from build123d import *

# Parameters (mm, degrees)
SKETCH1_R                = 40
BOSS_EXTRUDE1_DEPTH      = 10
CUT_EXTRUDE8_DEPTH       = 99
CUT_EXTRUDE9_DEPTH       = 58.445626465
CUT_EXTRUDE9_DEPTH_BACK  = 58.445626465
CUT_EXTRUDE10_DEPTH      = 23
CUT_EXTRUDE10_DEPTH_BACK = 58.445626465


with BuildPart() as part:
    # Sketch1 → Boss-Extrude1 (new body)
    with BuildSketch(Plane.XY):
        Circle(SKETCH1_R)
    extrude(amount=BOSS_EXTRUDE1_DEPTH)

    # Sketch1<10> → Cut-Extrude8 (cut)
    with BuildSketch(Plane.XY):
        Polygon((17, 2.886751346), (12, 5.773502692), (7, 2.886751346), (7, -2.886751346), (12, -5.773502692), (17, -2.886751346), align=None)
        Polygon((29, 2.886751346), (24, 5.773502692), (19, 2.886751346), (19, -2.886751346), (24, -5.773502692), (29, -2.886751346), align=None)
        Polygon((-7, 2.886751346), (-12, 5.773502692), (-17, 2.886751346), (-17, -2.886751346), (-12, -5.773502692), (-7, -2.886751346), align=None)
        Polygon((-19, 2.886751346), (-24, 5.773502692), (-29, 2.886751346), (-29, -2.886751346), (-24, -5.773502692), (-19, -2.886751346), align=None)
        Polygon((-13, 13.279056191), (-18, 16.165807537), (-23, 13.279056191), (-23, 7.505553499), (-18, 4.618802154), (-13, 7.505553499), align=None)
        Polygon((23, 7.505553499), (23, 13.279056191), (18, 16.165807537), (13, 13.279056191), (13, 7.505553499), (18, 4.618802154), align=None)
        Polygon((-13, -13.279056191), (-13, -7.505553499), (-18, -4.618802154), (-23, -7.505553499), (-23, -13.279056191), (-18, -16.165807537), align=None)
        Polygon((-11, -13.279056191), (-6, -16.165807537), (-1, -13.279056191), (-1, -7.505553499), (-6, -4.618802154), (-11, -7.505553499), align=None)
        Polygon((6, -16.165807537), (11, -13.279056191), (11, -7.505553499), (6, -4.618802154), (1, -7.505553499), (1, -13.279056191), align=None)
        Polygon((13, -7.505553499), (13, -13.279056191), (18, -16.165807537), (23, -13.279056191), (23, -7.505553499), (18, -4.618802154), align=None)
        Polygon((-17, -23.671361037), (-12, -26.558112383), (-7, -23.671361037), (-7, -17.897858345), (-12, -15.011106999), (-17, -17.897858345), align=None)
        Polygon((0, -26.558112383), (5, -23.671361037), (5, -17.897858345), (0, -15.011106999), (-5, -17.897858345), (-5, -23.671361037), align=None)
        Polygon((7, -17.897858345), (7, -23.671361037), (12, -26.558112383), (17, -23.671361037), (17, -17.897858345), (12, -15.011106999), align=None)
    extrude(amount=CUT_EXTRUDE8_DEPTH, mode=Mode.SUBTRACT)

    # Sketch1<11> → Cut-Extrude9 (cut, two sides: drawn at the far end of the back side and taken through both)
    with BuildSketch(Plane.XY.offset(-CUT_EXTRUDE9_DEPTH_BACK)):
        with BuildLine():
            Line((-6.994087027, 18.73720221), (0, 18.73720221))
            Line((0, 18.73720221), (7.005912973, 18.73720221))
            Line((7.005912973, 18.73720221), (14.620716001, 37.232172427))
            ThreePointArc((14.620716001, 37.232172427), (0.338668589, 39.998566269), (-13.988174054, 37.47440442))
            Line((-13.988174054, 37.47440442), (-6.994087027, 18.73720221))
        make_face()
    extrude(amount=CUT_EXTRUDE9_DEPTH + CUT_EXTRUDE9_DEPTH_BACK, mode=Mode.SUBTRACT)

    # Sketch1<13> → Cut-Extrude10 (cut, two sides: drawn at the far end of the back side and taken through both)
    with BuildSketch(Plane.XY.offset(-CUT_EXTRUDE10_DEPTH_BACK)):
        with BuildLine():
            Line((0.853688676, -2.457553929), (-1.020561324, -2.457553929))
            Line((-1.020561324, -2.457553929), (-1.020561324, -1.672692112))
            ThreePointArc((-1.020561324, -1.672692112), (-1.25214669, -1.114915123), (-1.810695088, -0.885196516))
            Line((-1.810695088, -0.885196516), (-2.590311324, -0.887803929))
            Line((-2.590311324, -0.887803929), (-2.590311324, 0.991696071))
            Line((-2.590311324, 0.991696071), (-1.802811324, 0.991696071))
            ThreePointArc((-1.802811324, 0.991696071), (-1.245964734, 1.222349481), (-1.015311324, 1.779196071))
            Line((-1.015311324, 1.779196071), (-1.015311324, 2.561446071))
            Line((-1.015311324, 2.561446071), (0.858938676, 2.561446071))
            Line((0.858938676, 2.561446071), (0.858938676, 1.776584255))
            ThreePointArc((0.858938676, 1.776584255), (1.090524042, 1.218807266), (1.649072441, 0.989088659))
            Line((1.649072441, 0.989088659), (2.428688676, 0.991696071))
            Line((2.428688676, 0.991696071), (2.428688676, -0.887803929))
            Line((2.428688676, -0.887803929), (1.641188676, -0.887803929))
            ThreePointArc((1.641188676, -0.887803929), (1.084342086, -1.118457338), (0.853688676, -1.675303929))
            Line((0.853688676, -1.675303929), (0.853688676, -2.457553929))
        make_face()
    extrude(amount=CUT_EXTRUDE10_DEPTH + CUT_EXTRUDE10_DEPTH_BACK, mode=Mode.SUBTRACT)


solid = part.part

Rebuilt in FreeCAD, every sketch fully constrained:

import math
import FreeCAD as App
import Part
import Sketcher
from FreeCAD import Vector
Q = App.Units.Quantity


def add_polygon(sketch, points):
    """Adds a closed chain of lines whose ends are joined by coincident constraints."""
    first, n = sketch.GeometryCount, len(points)
    for a, b in zip(points, points[1:] + points[:1]):
        sketch.addGeometry(Part.LineSegment(App.Vector(*a, 0), App.Vector(*b, 0)), False)
    for i in range(n):
        sketch.addConstraint(Sketcher.Constraint("Coincident", first + i, 2, first + (i + 1) % n, 1))

doc = App.newDocument("Part")
params = doc.addObject("Spreadsheet::Sheet", "Params")
for row, (alias, value) in enumerate([
    ("sketch1_diameter", "80 mm"),
    ("pad1_length", "10 mm"),
    ("pocket1_length", "99 mm"),
    ("sketch3_radius", "40 mm"),
    ("sketch3_width", "14 mm"),
    ("sketch3_length", "20 mm"),
], start=1):
    params.set(f"A{row}", alias)
    params.set(f"B{row}", "=" + value)
    params.setAlias(f"B{row}", alias)

body = doc.addObject("PartDesign::Body", "Body")

sketch1 = body.newObject("Sketcher::SketchObject", "Sketch")
sketch1.AttachmentSupport = (doc.getObject("XY_Plane"), [""])
sketch1.MapMode = "FlatFace"
sketch1.addGeometry(Part.Circle(Vector(0, 0, 0), Vector(0, 0, 1), 40), False)
sketch1.addConstraint(Sketcher.Constraint("Coincident", 0, 3, -1, 1))
sketch1.addConstraint(Sketcher.Constraint("Diameter", 0, 80.0))
sketch1.setExpression("Constraints[1]", "Params.sketch1_diameter")
pad1 = body.newObject("PartDesign::Pad", "Pad")
pad1.Profile = sketch1
pad1.setExpression("Length", "Params.pad1_length")

sketch2 = body.newObject("Sketcher::SketchObject", "Sketch001")
sketch2.AttachmentSupport = (doc.getObject("XY_Plane"), [""])
sketch2.MapMode = "FlatFace"
add_polygon(sketch2, [(17, 3), (12, 6), (7, 3), (7, -3), (12, -6), (17, -3)])
add_polygon(sketch2, [(29, 3), (24, 6), (19, 3), (19, -3), (24, -6), (29, -3)])
add_polygon(sketch2, [(-7, 3), (-12, 6), (-17, 3), (-17, -3), (-12, -6), (-7, -3)])
add_polygon(sketch2, [(-19, 3), (-24, 6), (-29, 3), (-29, -3), (-24, -6), (-19, -3)])
add_polygon(sketch2, [(-13, 13), (-18, 16), (-23, 13), (-23, 8), (-18, 5), (-13, 8)])
add_polygon(sketch2, [(23, 8), (23, 13), (18, 16), (13, 13), (13, 8), (18, 5)])
add_polygon(sketch2, [(-13, -13), (-13, -8), (-18, -5), (-23, -8), (-23, -13), (-18, -16)])
add_polygon(sketch2, [(-11, -13), (-6, -16), (-1, -13), (-1, -8), (-6, -5), (-11, -8)])
add_polygon(sketch2, [(6, -16), (11, -13), (11, -8), (6, -5), (1, -8), (1, -13)])
add_polygon(sketch2, [(13, -8), (13, -13), (18, -16), (23, -13), (23, -8), (18, -5)])
add_polygon(sketch2, [(-17, -24), (-12, -27), (-7, -24), (-7, -18), (-12, -15), (-17, -18)])
add_polygon(sketch2, [(0, -27), (5, -24), (5, -18), (0, -15), (-5, -18), (-5, -24)])
add_polygon(sketch2, [(7, -18), (7, -24), (12, -27), (17, -24), (17, -18), (12, -15)])
sketch2.addConstraint(Sketcher.Constraint("Vertical", 2))
sketch2.addConstraint(Sketcher.Constraint("Vertical", 5))
sketch2.addConstraint(Sketcher.Constraint("Vertical", 8))
sketch2.addConstraint(Sketcher.Constraint("Vertical", 11))
sketch2.addConstraint(Sketcher.Constraint("Vertical", 14))
sketch2.addConstraint(Sketcher.Constraint("Vertical", 17))
sketch2.addConstraint(Sketcher.Constraint("Vertical", 20))
sketch2.addConstraint(Sketcher.Constraint("Vertical", 23))
sketch2.addConstraint(Sketcher.Constraint("Vertical", 26))
sketch2.addConstraint(Sketcher.Constraint("Vertical", 29))
sketch2.addConstraint(Sketcher.Constraint("Vertical", 30))
sketch2.addConstraint(Sketcher.Constraint("Vertical", 33))
sketch2.addConstraint(Sketcher.Constraint("Vertical", 36))
sketch2.addConstraint(Sketcher.Constraint("Vertical", 39))
sketch2.addConstraint(Sketcher.Constraint("Vertical", 44))
sketch2.addConstraint(Sketcher.Constraint("Vertical", 47))
sketch2.addConstraint(Sketcher.Constraint("Vertical", 49))
sketch2.addConstraint(Sketcher.Constraint("Vertical", 52))
sketch2.addConstraint(Sketcher.Constraint("Vertical", 54))
sketch2.addConstraint(Sketcher.Constraint("Vertical", 57))
sketch2.addConstraint(Sketcher.Constraint("Vertical", 62))
sketch2.addConstraint(Sketcher.Constraint("Vertical", 65))
sketch2.addConstraint(Sketcher.Constraint("Vertical", 67))
sketch2.addConstraint(Sketcher.Constraint("Vertical", 70))
sketch2.addConstraint(Sketcher.Constraint("Vertical", 72))
sketch2.addConstraint(Sketcher.Constraint("Vertical", 75))
sketch2.addConstraint(Sketcher.Constraint("Symmetric", 3, 2, 12, 2, -1, 1))
sketch2.addConstraint(Sketcher.Constraint("Symmetric", 4, 2, 13, 2, -1, 1))
sketch2.addConstraint(Sketcher.Constraint("Symmetric", 0, 2, 15, 2, -1, 1))
sketch2.addConstraint(Sketcher.Constraint("Symmetric", 1, 2, 16, 2, -1, 1))
sketch2.addConstraint(Sketcher.Constraint("Symmetric", 9, 2, 18, 2, -1, 1))
sketch2.addConstraint(Sketcher.Constraint("Symmetric", 10, 2, 19, 2, -1, 1))
sketch2.addConstraint(Sketcher.Constraint("Symmetric", 6, 2, 21, 2, -1, 1))
sketch2.addConstraint(Sketcher.Constraint("Symmetric", 7, 2, 22, 2, -1, 1))
sketch2.addConstraint(Sketcher.Constraint("Symmetric", 33, 2, 36, 2, -1, 1))
sketch2.addConstraint(Sketcher.Constraint("Symmetric", 34, 2, 37, 2, -1, 1))
sketch2.addConstraint(Sketcher.Constraint("Symmetric", 35, 2, 38, 2, -1, 1))
sketch2.addConstraint(Sketcher.Constraint("Symmetric", 31, 2, 40, 2, -1, 1))
sketch2.addConstraint(Sketcher.Constraint("Symmetric", 29, 2, 54, 2, -1, 1))
sketch2.addConstraint(Sketcher.Constraint("Symmetric", 24, 2, 55, 2, -1, 1))
sketch2.addConstraint(Sketcher.Constraint("Symmetric", 25, 2, 56, 2, -1, 1))
sketch2.addConstraint(Sketcher.Constraint("Symmetric", 27, 2, 58, 2, -1, 1))
sketch2.addConstraint(Sketcher.Constraint("Symmetric", 0, 2, 12, 2, -2))
sketch2.addConstraint(Sketcher.Constraint("Symmetric", 6, 2, 18, 2, -2))
sketch2.addConstraint(Sketcher.Constraint("Symmetric", 25, 2, 30, 2, -2))
sketch2.addConstraint(Sketcher.Constraint("Symmetric", 24, 2, 31, 2, -2))
sketch2.addConstraint(Sketcher.Constraint("Symmetric", 29, 2, 32, 2, -2))
sketch2.addConstraint(Sketcher.Constraint("Symmetric", 27, 2, 34, 2, -2))
sketch2.addConstraint(Sketcher.Constraint("Symmetric", 47, 2, 48, 2, -2))
sketch2.addConstraint(Sketcher.Constraint("Symmetric", 45, 2, 50, 2, -2))
sketch2.addConstraint(Sketcher.Constraint("Symmetric", 44, 2, 51, 2, -2))
sketch2.addConstraint(Sketcher.Constraint("Symmetric", 42, 2, 53, 2, -2))
sketch2.addConstraint(Sketcher.Constraint("Symmetric", 67, 2, 69, 2, -2))
sketch2.addConstraint(Sketcher.Constraint("Symmetric", 61, 2, 72, 2, -2))
sketch2.addConstraint(Sketcher.Constraint("Symmetric", 60, 2, 73, 2, -2))
sketch2.addConstraint(Sketcher.Constraint("Symmetric", 65, 2, 74, 2, -2))
sketch2.addConstraint(Sketcher.Constraint("Symmetric", 63, 2, 76, 2, -2))
sketch2.addConstraint(Sketcher.Constraint("PointOnObject", 68, 2, -2))
sketch2.addConstraint(Sketcher.Constraint("PointOnObject", 71, 2, -2))
sketch2.addConstraint(Sketcher.Constraint("Parallel", 0, 3))
sketch2.addConstraint(Sketcher.Constraint("Parallel", 1, 4))
sketch2.addConstraint(Sketcher.Constraint("Parallel", 3, 6))
sketch2.addConstraint(Sketcher.Constraint("Parallel", 4, 7))
sketch2.addConstraint(Sketcher.Constraint("Parallel", 6, 9))
sketch2.addConstraint(Sketcher.Constraint("Parallel", 7, 10))
sketch2.addConstraint(Sketcher.Constraint("Parallel", 9, 12))
sketch2.addConstraint(Sketcher.Constraint("Parallel", 12, 15))
sketch2.addConstraint(Sketcher.Constraint("Parallel", 15, 18))
sketch2.addConstraint(Sketcher.Constraint("Parallel", 18, 21))
sketch2.addConstraint(Sketcher.Constraint("Parallel", 21, 24))
sketch2.addConstraint(Sketcher.Constraint("Parallel", 22, 25))
sketch2.addConstraint(Sketcher.Constraint("Parallel", 24, 27))
sketch2.addConstraint(Sketcher.Constraint("Parallel", 25, 28))
sketch2.addConstraint(Sketcher.Constraint("Parallel", 27, 31))
sketch2.addConstraint(Sketcher.Constraint("Parallel", 31, 34))
sketch2.addConstraint(Sketcher.Constraint("Parallel", 32, 35))
sketch2.addConstraint(Sketcher.Constraint("Parallel", 37, 40))
sketch2.addConstraint(Sketcher.Constraint("Parallel", 38, 41))
sketch2.addConstraint(Sketcher.Constraint("Parallel", 40, 42))
sketch2.addConstraint(Sketcher.Constraint("Parallel", 41, 43))
sketch2.addConstraint(Sketcher.Constraint("Parallel", 42, 45))
sketch2.addConstraint(Sketcher.Constraint("Parallel", 43, 46))
sketch2.addConstraint(Sketcher.Constraint("Parallel", 45, 50))
sketch2.addConstraint(Sketcher.Constraint("Parallel", 50, 53))
sketch2.addConstraint(Sketcher.Constraint("Parallel", 55, 58))
sketch2.addConstraint(Sketcher.Constraint("Parallel", 56, 59))
sketch2.addConstraint(Sketcher.Constraint("Parallel", 58, 60))
sketch2.addConstraint(Sketcher.Constraint("Parallel", 59, 61))
sketch2.addConstraint(Sketcher.Constraint("Parallel", 60, 63))
sketch2.addConstraint(Sketcher.Constraint("Parallel", 61, 64))
sketch2.addConstraint(Sketcher.Constraint("Parallel", 64, 66))
sketch2.addConstraint(Sketcher.Constraint("Parallel", 63, 68))
sketch2.addConstraint(Sketcher.Constraint("Parallel", 68, 71))
sketch2.addConstraint(Sketcher.Constraint("Parallel", 73, 76))
sketch2.addConstraint(Sketcher.Constraint("Parallel", 74, 77))
sketch2.addConstraint(Sketcher.Constraint("Horizontal", 2, 2, 4, 2))
sketch2.addConstraint(Sketcher.Constraint("Horizontal", 0, 2, 6, 2))
sketch2.addConstraint(Sketcher.Constraint("Horizontal", 5, 2, 7, 2))
sketch2.addConstraint(Sketcher.Constraint("Horizontal", 8, 2, 10, 2))
sketch2.addConstraint(Sketcher.Constraint("Horizontal", 26, 2, 28, 2))
sketch2.addConstraint(Sketcher.Constraint("Horizontal", 25, 2, 29, 2))
sketch2.addConstraint(Sketcher.Constraint("Horizontal", 40, 2, 42, 2))
sketch2.addConstraint(Sketcher.Constraint("Horizontal", 41, 2, 43, 2))
sketch2.addConstraint(Sketcher.Constraint("Horizontal", 38, 2, 44, 2))
sketch2.addConstraint(Sketcher.Constraint("Horizontal", 37, 2, 45, 2))
sketch2.addConstraint(Sketcher.Constraint("Horizontal", 44, 2, 46, 2))
sketch2.addConstraint(Sketcher.Constraint("Horizontal", 62, 2, 64, 2))
sketch2.addConstraint(Sketcher.Constraint("Horizontal", 61, 2, 65, 2))
sketch2.addConstraint(Sketcher.Constraint("Horizontal", 65, 2, 66, 2))
sketch2.addConstraint(Sketcher.Constraint("Horizontal", 64, 2, 67, 2))
sketch2.addConstraint(Sketcher.Constraint("Horizontal", 63, 2, 68, 2))
sketch2.addConstraint(Sketcher.Constraint("Vertical", 15, 2, 60, 2))
sketch2.addConstraint(Sketcher.Constraint("Vertical", 17, 2, 61, 2))
sketch2.addConstraint(Sketcher.Constraint("Equal", 23, 26))
sketch2.addConstraint(Sketcher.Constraint("Equal", 57, 62))
sketch2.addConstraint(Sketcher.Constraint("Equal", 22, 24))
sketch2.addConstraint(Sketcher.Constraint("Angle", 0, Q("150 deg")))
sketch2.addConstraint(Sketcher.Constraint("DistanceX", -1, 1, 0, 2, 12.0))
sketch2.addConstraint(Sketcher.Constraint("DistanceX", -1, 1, 1, 2, 7.0))
sketch2.addConstraint(Sketcher.Constraint("DistanceX", -1, 1, 6, 2, 24.0))
sketch2.addConstraint(Sketcher.Constraint("DistanceX", 24, 2, -1, 1, 18.0))
sketch2.addConstraint(Sketcher.Constraint("DistanceX", 42, 2, -1, 1, 6.0))
sketch2.addConstraint(Sketcher.Constraint("DistanceY", 2, 2, 2, 1, 5.773503))
sketch2.addConstraint(Sketcher.Constraint("DistanceY", 61, 2, -1, 1, 23.671361))
sketch2.addConstraint(Sketcher.Constraint("DistanceY", -1, 1, 24, 2, 16.165808))
pocket1 = body.newObject("PartDesign::Pocket", "Pocket")
pocket1.Profile = sketch2
pocket1.setExpression("Length", "Params.pocket1_length")
pocket1.Reversed = True

sketch3 = body.newObject("Sketcher::SketchObject", "Sketch002")
sketch3.AttachmentSupport = (doc.getObject("XY_Plane"), [""])
sketch3.MapMode = "FlatFace"
sketch3.addGeometry(Part.LineSegment(Vector(-7, 19, 0), Vector(7, 19, 0)), False)
sketch3.addGeometry(Part.LineSegment(Vector(7, 19, 0), Vector(15, 37, 0)), False)
sketch3.addGeometry(Part.ArcOfCircle(Part.Circle(Vector(0, 0, 0), Vector(0, 0, 1), 40), math.radians(69), math.radians(110)), False)
sketch3.addGeometry(Part.LineSegment(Vector(-14, 37, 0), Vector(-7, 19, 0)), False)
sketch3.addConstraint(Sketcher.Constraint("Coincident", 0, 2, 1, 1))
sketch3.addConstraint(Sketcher.Constraint("Coincident", 1, 2, 2, 1))
sketch3.addConstraint(Sketcher.Constraint("Coincident", 2, 2, 3, 1))
sketch3.addConstraint(Sketcher.Constraint("Coincident", 3, 2, 0, 1))
sketch3.addConstraint(Sketcher.Constraint("Horizontal", 0))
sketch3.addConstraint(Sketcher.Constraint("Coincident", 2, 3, -1, 1))
sketch3.addConstraint(Sketcher.Constraint("Radius", 2, 40.0))
sketch3.addConstraint(Sketcher.Constraint("DistanceX", 0, 1, 0, 2, 14.0))
sketch3.addConstraint(Sketcher.Constraint("Distance", 3, 20.0))
sketch3.addConstraint(Sketcher.Constraint("Distance", 1, 20.001229))
sketch3.addConstraint(Sketcher.Constraint("DistanceY", 0, 2, 1, 2, 18.49497))
sketch3.addConstraint(Sketcher.Constraint("DistanceX", 2, 2, 1, 2, 28.60889))
sketch3.setExpression("Constraints[6]", "Params.sketch3_radius")
sketch3.setExpression("Constraints[7]", "Params.sketch3_width")
sketch3.setExpression("Constraints[8]", "Params.sketch3_length")
pocket2 = body.newObject("PartDesign::Pocket", "Pocket001")
pocket2.Profile = sketch3
pocket2.Type = "ThroughAll"
pocket2.Midplane = True

sketch4 = body.newObject("Sketcher::SketchObject", "Sketch003")
sketch4.AttachmentSupport = (doc.getObject("XY_Plane"), [""])
sketch4.MapMode = "FlatFace"
sketch4.addGeometry(Part.LineSegment(Vector(-1, -2.5, 0), Vector(0.9, -2.5, 0)), False)
sketch4.addGeometry(Part.LineSegment(Vector(0.9, -2.5, 0), Vector(0.9, -1.7, 0)), False)
sketch4.addGeometry(Part.ArcOfCircle(Part.Circle(Vector(1.6, -1.7, 0), Vector(0, 0, 1), 0.8), math.radians(90), math.radians(180)), False)
sketch4.addGeometry(Part.LineSegment(Vector(1.6, -0.9, 0), Vector(2.4, -0.9, 0)), False)
sketch4.addGeometry(Part.LineSegment(Vector(2.4, -0.9, 0), Vector(2.4, 1, 0)), False)
sketch4.addGeometry(Part.LineSegment(Vector(2.4, 1, 0), Vector(1.6, 1, 0)), False)
sketch4.addGeometry(Part.ArcOfCircle(Part.Circle(Vector(1.6, 1.8, 0), Vector(0, 0, 1), 0.8), math.radians(-180), math.radians(-90)), False)
sketch4.addGeometry(Part.LineSegment(Vector(0.9, 1.8, 0), Vector(0.9, 2.6, 0)), False)
sketch4.addGeometry(Part.LineSegment(Vector(0.9, 2.6, 0), Vector(-1, 2.6, 0)), False)
sketch4.addGeometry(Part.LineSegment(Vector(-1, 2.6, 0), Vector(-1, 1.8, 0)), False)
sketch4.addGeometry(Part.ArcOfCircle(Part.Circle(Vector(-1.8, 1.8, 0), Vector(0, 0, 1), 0.8), math.radians(-90), math.radians(0)), False)
sketch4.addGeometry(Part.LineSegment(Vector(-1.8, 1, 0), Vector(-2.6, 1, 0)), False)
sketch4.addGeometry(Part.LineSegment(Vector(-2.6, 1, 0), Vector(-2.6, -0.9, 0)), False)
sketch4.addGeometry(Part.LineSegment(Vector(-2.6, -0.9, 0), Vector(-1.8, -0.9, 0)), False)
sketch4.addGeometry(Part.ArcOfCircle(Part.Circle(Vector(-1.8, -1.7, 0), Vector(0, 0, 1), 0.8), math.radians(0), math.radians(90)), False)
sketch4.addGeometry(Part.LineSegment(Vector(-1, -1.7, 0), Vector(-1, -2.5, 0)), False)
sketch4.addConstraint(Sketcher.Constraint("Coincident", 0, 2, 1, 1))
sketch4.addConstraint(Sketcher.Constraint("Tangent", 1, 2, 2, 2))
sketch4.addConstraint(Sketcher.Constraint("Tangent", 2, 1, 3, 1))
sketch4.addConstraint(Sketcher.Constraint("Coincident", 3, 2, 4, 1))
sketch4.addConstraint(Sketcher.Constraint("Coincident", 4, 2, 5, 1))
sketch4.addConstraint(Sketcher.Constraint("Tangent", 5, 2, 6, 2))
sketch4.addConstraint(Sketcher.Constraint("Tangent", 6, 1, 7, 1))
sketch4.addConstraint(Sketcher.Constraint("Coincident", 7, 2, 8, 1))
sketch4.addConstraint(Sketcher.Constraint("Coincident", 8, 2, 9, 1))
sketch4.addConstraint(Sketcher.Constraint("Tangent", 9, 2, 10, 2))
sketch4.addConstraint(Sketcher.Constraint("Tangent", 10, 1, 11, 1))
sketch4.addConstraint(Sketcher.Constraint("Coincident", 11, 2, 12, 1))
sketch4.addConstraint(Sketcher.Constraint("Coincident", 12, 2, 13, 1))
sketch4.addConstraint(Sketcher.Constraint("Tangent", 13, 2, 14, 2))
sketch4.addConstraint(Sketcher.Constraint("Tangent", 14, 1, 15, 1))
sketch4.addConstraint(Sketcher.Constraint("Coincident", 15, 2, 0, 1))
sketch4.addConstraint(Sketcher.Constraint("Horizontal", 0))
sketch4.addConstraint(Sketcher.Constraint("Vertical", 1))
sketch4.addConstraint(Sketcher.Constraint("Horizontal", 3))
sketch4.addConstraint(Sketcher.Constraint("Vertical", 4))
sketch4.addConstraint(Sketcher.Constraint("Vertical", 7))
sketch4.addConstraint(Sketcher.Constraint("Horizontal", 8))
sketch4.addConstraint(Sketcher.Constraint("Vertical", 9))
sketch4.addConstraint(Sketcher.Constraint("Horizontal", 11))
sketch4.addConstraint(Sketcher.Constraint("Vertical", 12))
sketch4.addConstraint(Sketcher.Constraint("Vertical", 15))
sketch4.addConstraint(Sketcher.Constraint("Equal", 2, 6))
sketch4.addConstraint(Sketcher.Constraint("Equal", 6, 10))
sketch4.addConstraint(Sketcher.Constraint("Equal", 10, 14))
sketch4.addConstraint(Sketcher.Constraint("Parallel", 5, 13))
sketch4.addConstraint(Sketcher.Constraint("Horizontal", 4, 2, 10, 1))
sketch4.addConstraint(Sketcher.Constraint("Horizontal", 3, 2, 12, 2))
sketch4.addConstraint(Sketcher.Constraint("Equal", 0, 8))
sketch4.addConstraint(Sketcher.Constraint("Equal", 3, 11))
sketch4.addConstraint(Sketcher.Constraint("Equal", 1, 9))
sketch4.addConstraint(Sketcher.Constraint("Radius", 2, 0.7875))
sketch4.addConstraint(Sketcher.Constraint("DistanceX", 3, 1, 3, 2, 0.7875))
sketch4.addConstraint(Sketcher.Constraint("DistanceY", 4, 1, 4, 2, 1.8795))
sketch4.addConstraint(Sketcher.Constraint("DistanceX", 10, 3, 2, 3, 3.444))
sketch4.addConstraint(Sketcher.Constraint("DistanceX", 0, 1, 0, 2, 1.87425))
sketch4.addConstraint(Sketcher.Constraint("DistanceY", 1, 1, 1, 2, 0.78225))
sketch4.addConstraint(Sketcher.Constraint("DistanceY", 7, 1, 7, 2, 0.784862))
sketch4.addConstraint(Sketcher.Constraint("DistanceX", -1, 1, 2, 3, 1.641189))
sketch4.addConstraint(Sketcher.Constraint("DistanceY", -1, 1, 5, 2, 0.989089))
pocket3 = body.newObject("PartDesign::Pocket", "Pocket002")
pocket3.Profile = sketch4
pocket3.Type = "ThroughAll"
pocket3.Midplane = True

doc.recompute()
